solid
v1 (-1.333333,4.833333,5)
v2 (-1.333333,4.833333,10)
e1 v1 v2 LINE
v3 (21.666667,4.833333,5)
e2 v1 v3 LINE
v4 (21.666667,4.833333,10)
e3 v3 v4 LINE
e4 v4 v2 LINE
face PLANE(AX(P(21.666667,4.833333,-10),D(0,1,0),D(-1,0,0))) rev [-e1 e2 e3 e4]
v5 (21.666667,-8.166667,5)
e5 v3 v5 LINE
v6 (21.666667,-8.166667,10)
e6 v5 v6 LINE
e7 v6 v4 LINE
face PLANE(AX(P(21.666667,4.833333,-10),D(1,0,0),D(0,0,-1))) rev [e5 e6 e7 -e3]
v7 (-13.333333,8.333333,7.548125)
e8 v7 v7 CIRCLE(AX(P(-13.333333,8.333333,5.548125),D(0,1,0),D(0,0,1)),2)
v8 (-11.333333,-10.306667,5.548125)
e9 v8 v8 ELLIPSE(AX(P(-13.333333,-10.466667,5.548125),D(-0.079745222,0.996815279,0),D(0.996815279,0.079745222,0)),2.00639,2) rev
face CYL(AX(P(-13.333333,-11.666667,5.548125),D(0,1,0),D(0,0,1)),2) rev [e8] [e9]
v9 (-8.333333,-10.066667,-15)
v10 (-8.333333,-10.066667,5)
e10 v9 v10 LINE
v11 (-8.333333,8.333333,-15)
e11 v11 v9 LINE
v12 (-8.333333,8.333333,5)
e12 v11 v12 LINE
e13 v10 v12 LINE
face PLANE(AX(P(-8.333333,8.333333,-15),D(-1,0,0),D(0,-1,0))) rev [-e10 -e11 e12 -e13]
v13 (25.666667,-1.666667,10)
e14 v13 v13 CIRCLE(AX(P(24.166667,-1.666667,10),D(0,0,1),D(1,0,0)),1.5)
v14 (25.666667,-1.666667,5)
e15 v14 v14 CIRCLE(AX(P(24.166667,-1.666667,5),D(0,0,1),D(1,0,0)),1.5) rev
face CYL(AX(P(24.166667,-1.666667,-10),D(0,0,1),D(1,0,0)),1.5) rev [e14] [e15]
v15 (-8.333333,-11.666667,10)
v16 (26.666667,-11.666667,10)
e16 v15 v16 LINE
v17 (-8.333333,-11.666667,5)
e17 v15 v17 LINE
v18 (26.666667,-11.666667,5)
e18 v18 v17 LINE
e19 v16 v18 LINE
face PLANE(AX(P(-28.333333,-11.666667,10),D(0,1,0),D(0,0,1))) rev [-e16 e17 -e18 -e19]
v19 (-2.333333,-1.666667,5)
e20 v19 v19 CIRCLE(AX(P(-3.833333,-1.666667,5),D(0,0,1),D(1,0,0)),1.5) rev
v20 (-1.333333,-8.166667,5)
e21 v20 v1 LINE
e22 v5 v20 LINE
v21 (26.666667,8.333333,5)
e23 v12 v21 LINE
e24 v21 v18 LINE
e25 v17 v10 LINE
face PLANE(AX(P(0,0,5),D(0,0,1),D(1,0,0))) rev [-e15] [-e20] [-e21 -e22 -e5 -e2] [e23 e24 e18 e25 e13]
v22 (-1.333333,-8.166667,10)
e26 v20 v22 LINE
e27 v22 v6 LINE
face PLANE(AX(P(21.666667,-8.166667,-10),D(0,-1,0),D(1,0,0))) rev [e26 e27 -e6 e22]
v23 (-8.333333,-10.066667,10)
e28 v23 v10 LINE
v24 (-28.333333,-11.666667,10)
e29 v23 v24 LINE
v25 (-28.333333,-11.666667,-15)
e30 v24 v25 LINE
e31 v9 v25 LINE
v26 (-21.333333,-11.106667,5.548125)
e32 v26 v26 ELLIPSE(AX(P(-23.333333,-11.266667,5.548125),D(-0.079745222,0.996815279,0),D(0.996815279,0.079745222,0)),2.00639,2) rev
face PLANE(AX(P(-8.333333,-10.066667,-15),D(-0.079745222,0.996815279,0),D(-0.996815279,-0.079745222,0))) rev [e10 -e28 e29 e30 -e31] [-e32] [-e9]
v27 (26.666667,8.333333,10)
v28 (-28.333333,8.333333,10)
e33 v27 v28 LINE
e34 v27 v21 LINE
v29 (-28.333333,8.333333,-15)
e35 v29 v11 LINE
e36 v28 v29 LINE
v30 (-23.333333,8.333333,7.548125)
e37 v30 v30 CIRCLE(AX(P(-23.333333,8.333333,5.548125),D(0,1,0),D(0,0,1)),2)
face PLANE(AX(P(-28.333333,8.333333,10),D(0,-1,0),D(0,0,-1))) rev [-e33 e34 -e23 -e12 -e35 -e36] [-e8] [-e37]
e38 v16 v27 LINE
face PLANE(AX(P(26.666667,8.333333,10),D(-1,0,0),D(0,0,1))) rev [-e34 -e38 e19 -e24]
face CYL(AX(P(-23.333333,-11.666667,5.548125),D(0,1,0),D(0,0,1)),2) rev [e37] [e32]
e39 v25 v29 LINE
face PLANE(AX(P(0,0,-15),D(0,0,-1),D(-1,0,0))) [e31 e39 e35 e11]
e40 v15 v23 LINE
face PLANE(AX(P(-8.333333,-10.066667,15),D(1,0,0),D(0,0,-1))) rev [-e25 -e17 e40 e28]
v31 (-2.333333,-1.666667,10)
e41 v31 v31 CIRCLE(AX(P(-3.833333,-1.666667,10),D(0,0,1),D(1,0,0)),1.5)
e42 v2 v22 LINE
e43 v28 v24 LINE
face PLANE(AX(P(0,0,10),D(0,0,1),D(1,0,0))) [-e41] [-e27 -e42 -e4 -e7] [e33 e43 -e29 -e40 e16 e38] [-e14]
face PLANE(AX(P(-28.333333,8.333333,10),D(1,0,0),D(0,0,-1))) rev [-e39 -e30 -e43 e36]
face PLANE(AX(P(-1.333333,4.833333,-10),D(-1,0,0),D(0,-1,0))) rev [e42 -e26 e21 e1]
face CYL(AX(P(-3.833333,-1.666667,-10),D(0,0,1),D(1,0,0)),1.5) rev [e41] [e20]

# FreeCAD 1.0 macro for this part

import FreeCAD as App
import Part
import Sketcher

V = App.Vector


def add_polygon(sketch, points):
    """Adds a closed chain of lines whose ends are joined by coincident constraints."""
    first, n = sketch.GeometryCount, len(points)
    for a, b in zip(points, points[1:] + points[:1]):
        sketch.addGeometry(Part.LineSegment(App.Vector(*a, 0), App.Vector(*b, 0)), False)
    for i in range(n):
        sketch.addConstraint(Sketcher.Constraint("Coincident", first + i, 2, first + (i + 1) % n, 1))

doc = App.newDocument("Part")
body = doc.addObject("PartDesign::Body", "Body")

sketch1 = body.newObject("Sketcher::SketchObject", "Sketch")
sketch1.AttachmentSupport = (doc.getObject("XY_Plane"), [""])
sketch1.MapMode = "FlatFace"
add_polygon(sketch1, [(-28, 8), (-28, -12), (27, -12), (27, 8)])
sketch1.addConstraint([
    Sketcher.Constraint("Vertical", 0),
    Sketcher.Constraint("Horizontal", 1),
    Sketcher.Constraint("Vertical", 2),
    Sketcher.Constraint("Horizontal", 3),
    Sketcher.Constraint("DistanceX", 1, 1, 1, 2, 55.0),
    Sketcher.Constraint("DistanceY", 0, 2, 0, 1, 20.0),
    Sketcher.Constraint("DistanceX", 0, 2, -1, 1, 28.333333),
    Sketcher.Constraint("DistanceY", 0, 2, -1, 1, 11.666667),
])
pad1 = body.newObject("PartDesign::Pad", "Pad")
pad1.Profile = sketch1
pad1.Length = 10

sketch2 = body.newObject("Sketcher::SketchObject", "Sketch001")
sketch2.AttachmentSupport = (doc.getObject("XZ_Plane"), [""])
sketch2.MapMode = "FlatFace"
sketch2.AttachmentOffset = App.Placement(V(0, 0, -8.333333), App.Rotation())
sketch2.addGeometry([
    Part.Circle(V(-23.3, 5.5, 0), V(0, 0, 1), 2),
    Part.Circle(V(-13.3, 5.5, 0), V(0, 0, 1), 2),
], False)
sketch2.addConstraint([
    Sketcher.Constraint("Equal", 0, 1),
    Sketcher.Constraint("Horizontal", 0, 3, 1, 3),
    Sketcher.Constraint("Diameter", 0, 4.0),
    Sketcher.Constraint("DistanceX", 0, 3, 1, 3, 10.0),
    Sketcher.Constraint("DistanceX", 0, 3, -1, 1, 23.333333),
    Sketcher.Constraint("DistanceY", -1, 1, 0, 3, 5.548125),
])
pocket1 = body.newObject("PartDesign::Pocket", "Pocket")
pocket1.Profile = sketch2
pocket1.Length = 20
pocket1.Reversed = True

sketch3 = body.newObject("Sketcher::SketchObject", "Sketch002")
sketch3.AttachmentSupport = (doc.getObject("XY_Plane"), [""])
sketch3.MapMode = "FlatFace"
sketch3.AttachmentOffset = App.Placement(V(0, 0, 10), App.Rotation())
sketch3.addGeometry(Part.Circle(V(24.2, -1.7, 0), V(0, 0, 1), 1.5), False)
sketch3.addGeometry(Part.Circle(V(-3.8, -1.7, 0), V(0, 0, 1), 1.5), False)
add_polygon(sketch3, [(-1.3, 4.8), (-1.3, -8.2), (21.7, -8.2), (21.7, 4.8)])
sketch3.addConstraint([
    Sketcher.Constraint("Vertical", 2),
    Sketcher.Constraint("Horizontal", 3),
    Sketcher.Constraint("Vertical", 4),
    Sketcher.Constraint("Horizontal", 5),
    Sketcher.Constraint("Equal", 0, 1),
    Sketcher.Constraint("Horizontal", 0, 3, 1, 3),
    Sketcher.Constraint("Diameter", 0, 3.0),
    Sketcher.Constraint("DistanceX", 3, 1, 3, 2, 23.0),
    Sketcher.Constraint("DistanceY", 2, 2, 2, 1, 13.0),
    Sketcher.Constraint("DistanceX", 1, 3, 0, 3, 28.0),
    Sketcher.Constraint("DistanceX", 1, 3, 2, 2, 2.5),
    Sketcher.Constraint("DistanceY", 2, 2, 1, 3, 6.5),
    Sketcher.Constraint("DistanceX", -1, 1, 0, 3, 24.166667),
    Sketcher.Constraint("DistanceY", 0, 3, -1, 1, 1.666667),
])
pocket2 = body.newObject("PartDesign::Pocket", "Pocket001")
pocket2.Profile = sketch3
pocket2.Length = 20

sketch4 = body.newObject("Sketcher::SketchObject", "Sketch003")
sketch4.AttachmentSupport = (doc.getObject("XY_Plane"), [""])
sketch4.MapMode = "FlatFace"
add_polygon(sketch4, [(-28, -12), (-28, 8), (-8, 8), (-8, -10)])
sketch4.addConstraint([
    Sketcher.Constraint("Vertical", 0),
    Sketcher.Constraint("Horizontal", 1),
    Sketcher.Constraint("Vertical", 2),
    Sketcher.Constraint("Equal", 1, 0),
    Sketcher.Constraint("DistanceX", 1, 1, 1, 2, 20.0),
    Sketcher.Constraint("DistanceY", 2, 2, 2, 1, 18.4),
    Sketcher.Constraint("DistanceX", 0, 2, -1, 1, 28.333333),
    Sketcher.Constraint("DistanceY", -1, 1, 0, 2, 8.333333),
])
pad2 = body.newObject("PartDesign::Pad", "Pad001")
pad2.Profile = sketch4
pad2.Length = 15
pad2.Reversed = True

sketch5 = body.newObject("Sketcher::SketchObject", "Sketch004")
sketch5.AttachmentSupport = (doc.getObject("XY_Plane"), [""])
sketch5.MapMode = "FlatFace"
add_polygon(sketch5, [(-8.3, -10.1), (-8.3, -11.7), (-28.3, -11.7)])
sketch5.addConstraint([
    Sketcher.Constraint("Vertical", 0),
    Sketcher.Constraint("Horizontal", 1),
    Sketcher.Constraint("DistanceX", 1, 2, 1, 1, 20.0),
    Sketcher.Constraint("DistanceY", 0, 2, 0, 1, 1.6),
    Sketcher.Constraint("DistanceX", 0, 2, -1, 1, 8.333333),
    Sketcher.Constraint("DistanceY", 0, 2, -1, 1, 11.666667),
])
pocket3 = body.newObject("PartDesign::Pocket", "Pocket002")
pocket3.Profile = sketch5
pocket3.Length = 15
pocket3.Reversed = True

sketch6 = body.newObject("Sketcher::SketchObject", "Sketch005")
sketch6.AttachmentSupport = (doc.getObject("XY_Plane"), [""])
sketch6.MapMode = "FlatFace"
add_polygon(sketch6, [(27, 8), (27, -12), (-8, -12), (-8, 8)])
sketch6.addConstraint([
    Sketcher.Constraint("Vertical", 0),
    Sketcher.Constraint("Horizontal", 1),
    Sketcher.Constraint("Vertical", 2),
    Sketcher.Constraint("Horizontal", 3),
    Sketcher.Constraint("DistanceX", 1, 2, 1, 1, 35.0),
    Sketcher.Constraint("DistanceY", 0, 2, 0, 1, 20.0),
    Sketcher.Constraint("DistanceX", -1, 1, 0, 2, 26.666667),
    Sketcher.Constraint("DistanceY", 0, 2, -1, 1, 11.666667),
])
pocket4 = body.newObject("PartDesign::Pocket", "Pocket003")
pocket4.Profile = sketch6
pocket4.Length = 5
pocket4.Reversed = True

doc.recompute()
